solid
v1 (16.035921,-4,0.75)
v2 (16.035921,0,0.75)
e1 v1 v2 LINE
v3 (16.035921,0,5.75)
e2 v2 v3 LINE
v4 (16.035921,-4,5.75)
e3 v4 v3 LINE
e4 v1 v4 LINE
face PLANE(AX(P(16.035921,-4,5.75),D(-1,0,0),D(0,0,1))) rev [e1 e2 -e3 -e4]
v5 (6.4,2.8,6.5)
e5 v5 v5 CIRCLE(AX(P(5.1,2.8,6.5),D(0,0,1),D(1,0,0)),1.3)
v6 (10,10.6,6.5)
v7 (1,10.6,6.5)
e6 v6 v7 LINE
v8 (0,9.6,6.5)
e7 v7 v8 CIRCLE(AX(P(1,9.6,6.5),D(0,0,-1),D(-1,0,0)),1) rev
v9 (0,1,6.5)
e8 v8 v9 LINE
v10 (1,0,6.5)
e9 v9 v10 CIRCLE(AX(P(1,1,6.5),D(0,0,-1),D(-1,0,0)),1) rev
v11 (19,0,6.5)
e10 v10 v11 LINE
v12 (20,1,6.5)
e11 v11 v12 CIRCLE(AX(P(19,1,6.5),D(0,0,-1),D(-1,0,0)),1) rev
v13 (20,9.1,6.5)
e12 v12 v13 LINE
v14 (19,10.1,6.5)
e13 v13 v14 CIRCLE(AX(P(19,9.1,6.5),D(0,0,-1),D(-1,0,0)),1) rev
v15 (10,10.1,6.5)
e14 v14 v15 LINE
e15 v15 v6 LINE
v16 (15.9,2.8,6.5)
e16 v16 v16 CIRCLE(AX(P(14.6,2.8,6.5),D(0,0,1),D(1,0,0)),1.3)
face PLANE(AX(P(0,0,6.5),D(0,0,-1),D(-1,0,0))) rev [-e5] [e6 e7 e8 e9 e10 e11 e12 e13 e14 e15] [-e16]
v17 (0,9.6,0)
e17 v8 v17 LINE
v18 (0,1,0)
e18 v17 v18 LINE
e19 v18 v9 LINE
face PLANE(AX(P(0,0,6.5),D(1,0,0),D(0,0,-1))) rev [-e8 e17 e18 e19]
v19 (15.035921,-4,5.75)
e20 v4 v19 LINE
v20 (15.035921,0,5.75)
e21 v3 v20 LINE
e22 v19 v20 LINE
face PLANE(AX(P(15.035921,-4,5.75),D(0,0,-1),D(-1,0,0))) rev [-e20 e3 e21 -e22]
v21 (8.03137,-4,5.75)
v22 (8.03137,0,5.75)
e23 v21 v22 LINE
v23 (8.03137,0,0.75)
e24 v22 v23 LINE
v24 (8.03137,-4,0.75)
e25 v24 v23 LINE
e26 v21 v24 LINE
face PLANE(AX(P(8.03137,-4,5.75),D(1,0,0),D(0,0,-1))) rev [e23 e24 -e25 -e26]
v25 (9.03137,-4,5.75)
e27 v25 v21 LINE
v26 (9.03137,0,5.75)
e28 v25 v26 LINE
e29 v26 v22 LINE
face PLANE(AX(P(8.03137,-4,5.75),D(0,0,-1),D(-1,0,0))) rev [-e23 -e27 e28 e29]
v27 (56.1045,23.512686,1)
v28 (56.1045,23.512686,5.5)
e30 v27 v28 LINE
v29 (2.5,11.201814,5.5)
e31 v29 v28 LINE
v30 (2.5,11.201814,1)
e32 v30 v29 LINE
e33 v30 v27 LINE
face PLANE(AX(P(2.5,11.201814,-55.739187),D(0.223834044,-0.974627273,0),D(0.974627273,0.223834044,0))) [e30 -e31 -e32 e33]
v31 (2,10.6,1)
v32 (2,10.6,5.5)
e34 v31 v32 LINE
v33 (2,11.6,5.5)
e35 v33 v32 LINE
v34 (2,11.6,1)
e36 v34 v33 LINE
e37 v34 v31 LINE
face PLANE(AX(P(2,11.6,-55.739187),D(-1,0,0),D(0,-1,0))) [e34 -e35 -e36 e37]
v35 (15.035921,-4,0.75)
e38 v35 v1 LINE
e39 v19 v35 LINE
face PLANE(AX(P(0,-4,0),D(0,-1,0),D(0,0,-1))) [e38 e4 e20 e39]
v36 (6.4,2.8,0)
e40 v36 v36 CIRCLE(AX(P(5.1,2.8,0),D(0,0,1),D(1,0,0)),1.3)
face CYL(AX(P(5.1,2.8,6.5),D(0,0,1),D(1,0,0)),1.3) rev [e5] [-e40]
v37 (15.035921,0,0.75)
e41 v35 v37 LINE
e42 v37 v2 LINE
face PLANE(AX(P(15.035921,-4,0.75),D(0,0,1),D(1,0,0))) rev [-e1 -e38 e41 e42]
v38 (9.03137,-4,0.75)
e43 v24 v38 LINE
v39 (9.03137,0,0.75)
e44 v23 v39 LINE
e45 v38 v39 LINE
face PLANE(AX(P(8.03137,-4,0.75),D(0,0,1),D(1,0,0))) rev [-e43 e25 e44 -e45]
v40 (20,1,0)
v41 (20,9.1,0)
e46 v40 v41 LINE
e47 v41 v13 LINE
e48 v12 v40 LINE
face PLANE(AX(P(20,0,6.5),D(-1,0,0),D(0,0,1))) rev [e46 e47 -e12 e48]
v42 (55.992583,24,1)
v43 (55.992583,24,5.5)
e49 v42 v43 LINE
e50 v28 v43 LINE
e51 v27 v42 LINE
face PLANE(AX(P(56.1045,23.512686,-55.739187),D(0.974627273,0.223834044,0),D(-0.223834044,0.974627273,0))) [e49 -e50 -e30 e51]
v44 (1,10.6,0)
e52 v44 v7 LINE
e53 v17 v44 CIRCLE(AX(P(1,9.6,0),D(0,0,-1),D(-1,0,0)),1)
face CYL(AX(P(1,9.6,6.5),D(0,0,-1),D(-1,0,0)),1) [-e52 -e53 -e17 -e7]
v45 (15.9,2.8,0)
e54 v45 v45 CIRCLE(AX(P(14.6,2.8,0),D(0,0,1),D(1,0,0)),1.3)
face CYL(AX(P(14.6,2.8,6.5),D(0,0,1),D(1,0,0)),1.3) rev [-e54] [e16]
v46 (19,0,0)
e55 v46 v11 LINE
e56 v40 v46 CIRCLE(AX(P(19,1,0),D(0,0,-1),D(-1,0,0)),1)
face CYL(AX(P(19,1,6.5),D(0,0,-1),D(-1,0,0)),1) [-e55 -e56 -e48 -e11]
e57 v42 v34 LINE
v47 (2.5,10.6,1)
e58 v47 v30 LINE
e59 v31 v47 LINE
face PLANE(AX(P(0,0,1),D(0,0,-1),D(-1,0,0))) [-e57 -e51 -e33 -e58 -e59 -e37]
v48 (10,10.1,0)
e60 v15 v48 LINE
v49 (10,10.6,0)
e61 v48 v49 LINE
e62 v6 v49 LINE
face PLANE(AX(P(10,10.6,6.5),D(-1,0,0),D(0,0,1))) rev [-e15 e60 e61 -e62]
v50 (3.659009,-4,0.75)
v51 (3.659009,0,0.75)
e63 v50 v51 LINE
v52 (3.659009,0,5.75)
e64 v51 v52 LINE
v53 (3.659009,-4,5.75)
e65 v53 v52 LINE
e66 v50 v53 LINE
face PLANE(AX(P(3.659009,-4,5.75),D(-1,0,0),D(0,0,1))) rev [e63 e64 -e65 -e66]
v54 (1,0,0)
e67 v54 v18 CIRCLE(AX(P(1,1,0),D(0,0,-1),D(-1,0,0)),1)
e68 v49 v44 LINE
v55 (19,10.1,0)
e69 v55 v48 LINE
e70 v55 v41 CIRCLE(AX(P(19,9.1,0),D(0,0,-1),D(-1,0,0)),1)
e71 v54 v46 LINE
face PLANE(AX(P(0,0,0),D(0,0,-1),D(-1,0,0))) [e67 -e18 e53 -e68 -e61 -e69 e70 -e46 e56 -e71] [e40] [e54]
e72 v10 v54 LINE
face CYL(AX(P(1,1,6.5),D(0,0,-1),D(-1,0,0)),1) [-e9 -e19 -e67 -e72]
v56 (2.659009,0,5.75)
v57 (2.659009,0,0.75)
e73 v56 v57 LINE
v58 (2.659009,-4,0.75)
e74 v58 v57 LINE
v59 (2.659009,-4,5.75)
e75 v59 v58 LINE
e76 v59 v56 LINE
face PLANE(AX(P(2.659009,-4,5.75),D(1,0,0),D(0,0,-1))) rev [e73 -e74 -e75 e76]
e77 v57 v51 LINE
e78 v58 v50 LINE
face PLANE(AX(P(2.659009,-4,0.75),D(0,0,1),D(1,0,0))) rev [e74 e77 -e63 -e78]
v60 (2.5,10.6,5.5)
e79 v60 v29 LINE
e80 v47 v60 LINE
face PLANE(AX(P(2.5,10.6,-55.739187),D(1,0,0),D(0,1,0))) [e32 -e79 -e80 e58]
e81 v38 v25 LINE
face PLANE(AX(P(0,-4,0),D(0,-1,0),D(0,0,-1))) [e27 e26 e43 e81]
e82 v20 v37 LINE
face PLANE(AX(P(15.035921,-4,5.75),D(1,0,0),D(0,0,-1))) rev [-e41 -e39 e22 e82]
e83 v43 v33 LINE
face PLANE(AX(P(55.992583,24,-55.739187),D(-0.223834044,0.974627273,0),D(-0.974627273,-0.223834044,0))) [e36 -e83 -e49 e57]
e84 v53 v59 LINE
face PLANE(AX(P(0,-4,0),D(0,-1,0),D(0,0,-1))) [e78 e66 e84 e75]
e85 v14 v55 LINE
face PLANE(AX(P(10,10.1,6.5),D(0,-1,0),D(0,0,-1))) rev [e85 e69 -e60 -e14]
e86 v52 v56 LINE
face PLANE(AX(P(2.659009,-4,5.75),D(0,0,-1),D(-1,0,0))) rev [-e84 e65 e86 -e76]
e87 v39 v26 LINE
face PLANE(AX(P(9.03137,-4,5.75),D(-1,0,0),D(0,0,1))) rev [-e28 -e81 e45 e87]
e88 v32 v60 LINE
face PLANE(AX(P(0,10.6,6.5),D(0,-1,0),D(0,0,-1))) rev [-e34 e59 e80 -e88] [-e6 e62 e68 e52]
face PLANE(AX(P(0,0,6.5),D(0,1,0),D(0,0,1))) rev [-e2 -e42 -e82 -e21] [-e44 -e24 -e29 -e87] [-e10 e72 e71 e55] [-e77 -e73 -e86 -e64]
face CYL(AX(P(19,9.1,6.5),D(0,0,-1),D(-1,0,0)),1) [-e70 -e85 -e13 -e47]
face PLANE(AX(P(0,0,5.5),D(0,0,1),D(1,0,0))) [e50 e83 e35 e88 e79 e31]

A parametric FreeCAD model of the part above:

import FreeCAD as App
import Part
import Sketcher


def edges_at(feature, points):
    """Names of the edges that pass closest to the given points."""
    edges = feature.Shape.Edges
    near = lambda p: min(range(len(edges)), key=lambda i: edges[i].distToShape(Part.Vertex(*p))[0])
    return sorted({f"Edge{near(p) + 1}" for p in points})


def add_polygon(sketch, points):
    """Adds a closed chain of lines whose ends are joined by coincident constraints."""
    first, n = sketch.GeometryCount, len(points)
    for a, b in zip(points, points[1:] + points[:1]):
        sketch.addGeometry(Part.LineSegment(App.Vector(*a, 0), App.Vector(*b, 0)), False)
    for i in range(n):
        sketch.addConstraint(Sketcher.Constraint("Coincident", first + i, 2, first + (i + 1) % n, 1))

doc = App.newDocument("Part")
body = doc.addObject("PartDesign::Body", "Body")

sketch1 = body.newObject("Sketcher::SketchObject", "Sketch")
sketch1.AttachmentSupport = (doc.getObject("XY_Plane"), [""])
sketch1.MapMode = "FlatFace"
add_polygon(sketch1, [(10, 10.1), (10, 10.6), (0, 10.6), (0, 0), (20, 0), (20, 10.1)])
sketch1.addConstraint(Sketcher.Constraint("Vertical", 0))
sketch1.addConstraint(Sketcher.Constraint("Horizontal", 1))
sketch1.addConstraint(Sketcher.Constraint("Vertical", 2))
sketch1.addConstraint(Sketcher.Constraint("Horizontal", 3))
sketch1.addConstraint(Sketcher.Constraint("Vertical", 4))
sketch1.addConstraint(Sketcher.Constraint("Horizontal", 5))
sketch1.addConstraint(Sketcher.Constraint("Coincident", 2, 2, -1, 1))
sketch1.addConstraint(Sketcher.Constraint("Equal", 1, 5))
sketch1.addConstraint(Sketcher.Constraint("DistanceX", 1, 2, 1, 1, 10.0))
sketch1.addConstraint(Sketcher.Constraint("DistanceY", 0, 1, 0, 2, 0.5))
sketch1.addConstraint(Sketcher.Constraint("DistanceY", 2, 2, 2, 1, 10.6))
pad1 = body.newObject("PartDesign::Pad", "Pad")
pad1.Profile = sketch1
pad1.Length = 6.5
doc.recompute()

fillet = body.newObject("PartDesign::Fillet", "Fillet")
fillet.Base = (pad1, edges_at(pad1, [
    (0, 10.6, 3.25),
    (20, 10.1, 3.25),
    (20, 0, 3.25),
    (0, 0, 3.25),
]))
fillet.Radius = 1

sketch2 = body.newObject("Sketcher::SketchObject", "Sketch001")
sketch2.AttachmentSupport = (doc.getObject("XY_Plane"), [""])
sketch2.MapMode = "FlatFace"
sketch2.AttachmentOffset = App.Placement(App.Vector(0, 0, 6.5), App.Rotation())
sketch2.addGeometry(Part.Circle(App.Vector(5.1, 2.8, 0), App.Vector(0, 0, 1), 1.3), False)
sketch2.addGeometry(Part.Circle(App.Vector(14.6, 2.8, 0), App.Vector(0, 0, 1), 1.3), False)
sketch2.addConstraint(Sketcher.Constraint("Equal", 0, 1))
sketch2.addConstraint(Sketcher.Constraint("Horizontal", 0, 3, 1, 3))
sketch2.addConstraint(Sketcher.Constraint("Diameter", 0, 2.6))
sketch2.addConstraint(Sketcher.Constraint("DistanceX", -1, 1, 0, 3, 5.1))
sketch2.addConstraint(Sketcher.Constraint("DistanceY", -1, 1, 0, 3, 2.8))
sketch2.addConstraint(Sketcher.Constraint("DistanceX", -1, 1, 1, 3, 14.6))
doc.recompute()
hole = body.newObject("PartDesign::Hole", "Hole")
hole.Profile = sketch2
hole.ThreadType = "None"
hole.Diameter = 2.6
hole.DepthType = "ThroughAll"

sketch3 = body.newObject("Sketcher::SketchObject", "Sketch002")
sketch3.AttachmentSupport = (doc.getObject("XY_Plane"), [""])
sketch3.MapMode = "FlatFace"
sketch3.AttachmentOffset = App.Placement(App.Vector(0, 0, 5.5), App.Rotation())
add_polygon(sketch3, [(2, 11.6), (2, 10.6), (2.5, 10.6), (2.5, 11.2), (56.1, 23.51), (55.99, 24)])
sketch3.addConstraint(Sketcher.Constraint("Vertical", 0))
sketch3.addConstraint(Sketcher.Constraint("Horizontal", 1))
sketch3.addConstraint(Sketcher.Constraint("Vertical", 2))
sketch3.addConstraint(Sketcher.Constraint("Perpendicular", 3, 4))
sketch3.addConstraint(Sketcher.Constraint("Perpendicular", 4, 5))
sketch3.addConstraint(Sketcher.Constraint("DistanceY", 0, 2, 0, 1, 1.0))
sketch3.addConstraint(Sketcher.Constraint("Distance", 3, 55.0))
sketch3.addConstraint(Sketcher.Constraint("DistanceX", 1, 1, 1, 2, 0.5))
sketch3.addConstraint(Sketcher.Constraint("DistanceX", -1, 1, 0, 2, 2.0))
sketch3.addConstraint(Sketcher.Constraint("DistanceY", -1, 1, 4, 2, 24.0))
sketch3.addConstraint(Sketcher.Constraint("Distance", 4, 0.5))
sketch3.addConstraint(Sketcher.Constraint("DistanceY", -1, 1, 0, 2, 10.6))
pad2 = body.newObject("PartDesign::Pad", "Pad001")
pad2.Profile = sketch3
pad2.Length = 4.5
pad2.Reversed = True

sketch4 = body.newObject("Sketcher::SketchObject", "Sketch003")
sketch4.AttachmentSupport = (doc.getObject("XZ_Plane"), [""])
sketch4.MapMode = "FlatFace"
add_polygon(sketch4, [(2.7, 5.8), (2.7, 0.8), (3.7, 0.8), (3.7, 5.8)])
add_polygon(sketch4, [(8, 5.8), (8, 0.8), (9, 0.8), (9, 5.8)])
add_polygon(sketch4, [(15, 5.8), (15, 0.8), (16, 0.8), (16, 5.8)])
sketch4.addConstraint(Sketcher.Constraint("Vertical", 0))
sketch4.addConstraint(Sketcher.Constraint("Horizontal", 1))
sketch4.addConstraint(Sketcher.Constraint("Vertical", 2))
sketch4.addConstraint(Sketcher.Constraint("Horizontal", 3))
sketch4.addConstraint(Sketcher.Constraint("Vertical", 4))
sketch4.addConstraint(Sketcher.Constraint("Horizontal", 5))
sketch4.addConstraint(Sketcher.Constraint("Vertical", 6))
sketch4.addConstraint(Sketcher.Constraint("Horizontal", 7))
sketch4.addConstraint(Sketcher.Constraint("Vertical", 8))
sketch4.addConstraint(Sketcher.Constraint("Horizontal", 9))
sketch4.addConstraint(Sketcher.Constraint("Vertical", 10))
sketch4.addConstraint(Sketcher.Constraint("Horizontal", 11))
sketch4.addConstraint(Sketcher.Constraint("Horizontal", 1, 2, 4, 2))
sketch4.addConstraint(Sketcher.Constraint("Horizontal", 3, 2, 6, 2))
sketch4.addConstraint(Sketcher.Constraint("Horizontal", 5, 2, 8, 2))
sketch4.addConstraint(Sketcher.Constraint("Horizontal", 7, 2, 10, 2))
sketch4.addConstraint(Sketcher.Constraint("Equal", 3, 5))
sketch4.addConstraint(Sketcher.Constraint("Equal", 7, 9))
sketch4.addConstraint(Sketcher.Constraint("DistanceX", 1, 1, 1, 2, 1.0))
sketch4.addConstraint(Sketcher.Constraint("DistanceY", 0, 2, 0, 1, 5.0))
sketch4.addConstraint(Sketcher.Constraint("DistanceY", -1, 1, 0, 2, 0.75))
sketch4.addConstraint(Sketcher.Constraint("DistanceX", -1, 1, 0, 2, 2.659009))
sketch4.addConstraint(Sketcher.Constraint("DistanceX", -1, 1, 4, 2, 8.03137))
sketch4.addConstraint(Sketcher.Constraint("DistanceX", -1, 1, 8, 2, 15.035921))
pad3 = body.newObject("PartDesign::Pad", "Pad002")
pad3.Profile = sketch4
pad3.Length = 4

doc.recompute()
